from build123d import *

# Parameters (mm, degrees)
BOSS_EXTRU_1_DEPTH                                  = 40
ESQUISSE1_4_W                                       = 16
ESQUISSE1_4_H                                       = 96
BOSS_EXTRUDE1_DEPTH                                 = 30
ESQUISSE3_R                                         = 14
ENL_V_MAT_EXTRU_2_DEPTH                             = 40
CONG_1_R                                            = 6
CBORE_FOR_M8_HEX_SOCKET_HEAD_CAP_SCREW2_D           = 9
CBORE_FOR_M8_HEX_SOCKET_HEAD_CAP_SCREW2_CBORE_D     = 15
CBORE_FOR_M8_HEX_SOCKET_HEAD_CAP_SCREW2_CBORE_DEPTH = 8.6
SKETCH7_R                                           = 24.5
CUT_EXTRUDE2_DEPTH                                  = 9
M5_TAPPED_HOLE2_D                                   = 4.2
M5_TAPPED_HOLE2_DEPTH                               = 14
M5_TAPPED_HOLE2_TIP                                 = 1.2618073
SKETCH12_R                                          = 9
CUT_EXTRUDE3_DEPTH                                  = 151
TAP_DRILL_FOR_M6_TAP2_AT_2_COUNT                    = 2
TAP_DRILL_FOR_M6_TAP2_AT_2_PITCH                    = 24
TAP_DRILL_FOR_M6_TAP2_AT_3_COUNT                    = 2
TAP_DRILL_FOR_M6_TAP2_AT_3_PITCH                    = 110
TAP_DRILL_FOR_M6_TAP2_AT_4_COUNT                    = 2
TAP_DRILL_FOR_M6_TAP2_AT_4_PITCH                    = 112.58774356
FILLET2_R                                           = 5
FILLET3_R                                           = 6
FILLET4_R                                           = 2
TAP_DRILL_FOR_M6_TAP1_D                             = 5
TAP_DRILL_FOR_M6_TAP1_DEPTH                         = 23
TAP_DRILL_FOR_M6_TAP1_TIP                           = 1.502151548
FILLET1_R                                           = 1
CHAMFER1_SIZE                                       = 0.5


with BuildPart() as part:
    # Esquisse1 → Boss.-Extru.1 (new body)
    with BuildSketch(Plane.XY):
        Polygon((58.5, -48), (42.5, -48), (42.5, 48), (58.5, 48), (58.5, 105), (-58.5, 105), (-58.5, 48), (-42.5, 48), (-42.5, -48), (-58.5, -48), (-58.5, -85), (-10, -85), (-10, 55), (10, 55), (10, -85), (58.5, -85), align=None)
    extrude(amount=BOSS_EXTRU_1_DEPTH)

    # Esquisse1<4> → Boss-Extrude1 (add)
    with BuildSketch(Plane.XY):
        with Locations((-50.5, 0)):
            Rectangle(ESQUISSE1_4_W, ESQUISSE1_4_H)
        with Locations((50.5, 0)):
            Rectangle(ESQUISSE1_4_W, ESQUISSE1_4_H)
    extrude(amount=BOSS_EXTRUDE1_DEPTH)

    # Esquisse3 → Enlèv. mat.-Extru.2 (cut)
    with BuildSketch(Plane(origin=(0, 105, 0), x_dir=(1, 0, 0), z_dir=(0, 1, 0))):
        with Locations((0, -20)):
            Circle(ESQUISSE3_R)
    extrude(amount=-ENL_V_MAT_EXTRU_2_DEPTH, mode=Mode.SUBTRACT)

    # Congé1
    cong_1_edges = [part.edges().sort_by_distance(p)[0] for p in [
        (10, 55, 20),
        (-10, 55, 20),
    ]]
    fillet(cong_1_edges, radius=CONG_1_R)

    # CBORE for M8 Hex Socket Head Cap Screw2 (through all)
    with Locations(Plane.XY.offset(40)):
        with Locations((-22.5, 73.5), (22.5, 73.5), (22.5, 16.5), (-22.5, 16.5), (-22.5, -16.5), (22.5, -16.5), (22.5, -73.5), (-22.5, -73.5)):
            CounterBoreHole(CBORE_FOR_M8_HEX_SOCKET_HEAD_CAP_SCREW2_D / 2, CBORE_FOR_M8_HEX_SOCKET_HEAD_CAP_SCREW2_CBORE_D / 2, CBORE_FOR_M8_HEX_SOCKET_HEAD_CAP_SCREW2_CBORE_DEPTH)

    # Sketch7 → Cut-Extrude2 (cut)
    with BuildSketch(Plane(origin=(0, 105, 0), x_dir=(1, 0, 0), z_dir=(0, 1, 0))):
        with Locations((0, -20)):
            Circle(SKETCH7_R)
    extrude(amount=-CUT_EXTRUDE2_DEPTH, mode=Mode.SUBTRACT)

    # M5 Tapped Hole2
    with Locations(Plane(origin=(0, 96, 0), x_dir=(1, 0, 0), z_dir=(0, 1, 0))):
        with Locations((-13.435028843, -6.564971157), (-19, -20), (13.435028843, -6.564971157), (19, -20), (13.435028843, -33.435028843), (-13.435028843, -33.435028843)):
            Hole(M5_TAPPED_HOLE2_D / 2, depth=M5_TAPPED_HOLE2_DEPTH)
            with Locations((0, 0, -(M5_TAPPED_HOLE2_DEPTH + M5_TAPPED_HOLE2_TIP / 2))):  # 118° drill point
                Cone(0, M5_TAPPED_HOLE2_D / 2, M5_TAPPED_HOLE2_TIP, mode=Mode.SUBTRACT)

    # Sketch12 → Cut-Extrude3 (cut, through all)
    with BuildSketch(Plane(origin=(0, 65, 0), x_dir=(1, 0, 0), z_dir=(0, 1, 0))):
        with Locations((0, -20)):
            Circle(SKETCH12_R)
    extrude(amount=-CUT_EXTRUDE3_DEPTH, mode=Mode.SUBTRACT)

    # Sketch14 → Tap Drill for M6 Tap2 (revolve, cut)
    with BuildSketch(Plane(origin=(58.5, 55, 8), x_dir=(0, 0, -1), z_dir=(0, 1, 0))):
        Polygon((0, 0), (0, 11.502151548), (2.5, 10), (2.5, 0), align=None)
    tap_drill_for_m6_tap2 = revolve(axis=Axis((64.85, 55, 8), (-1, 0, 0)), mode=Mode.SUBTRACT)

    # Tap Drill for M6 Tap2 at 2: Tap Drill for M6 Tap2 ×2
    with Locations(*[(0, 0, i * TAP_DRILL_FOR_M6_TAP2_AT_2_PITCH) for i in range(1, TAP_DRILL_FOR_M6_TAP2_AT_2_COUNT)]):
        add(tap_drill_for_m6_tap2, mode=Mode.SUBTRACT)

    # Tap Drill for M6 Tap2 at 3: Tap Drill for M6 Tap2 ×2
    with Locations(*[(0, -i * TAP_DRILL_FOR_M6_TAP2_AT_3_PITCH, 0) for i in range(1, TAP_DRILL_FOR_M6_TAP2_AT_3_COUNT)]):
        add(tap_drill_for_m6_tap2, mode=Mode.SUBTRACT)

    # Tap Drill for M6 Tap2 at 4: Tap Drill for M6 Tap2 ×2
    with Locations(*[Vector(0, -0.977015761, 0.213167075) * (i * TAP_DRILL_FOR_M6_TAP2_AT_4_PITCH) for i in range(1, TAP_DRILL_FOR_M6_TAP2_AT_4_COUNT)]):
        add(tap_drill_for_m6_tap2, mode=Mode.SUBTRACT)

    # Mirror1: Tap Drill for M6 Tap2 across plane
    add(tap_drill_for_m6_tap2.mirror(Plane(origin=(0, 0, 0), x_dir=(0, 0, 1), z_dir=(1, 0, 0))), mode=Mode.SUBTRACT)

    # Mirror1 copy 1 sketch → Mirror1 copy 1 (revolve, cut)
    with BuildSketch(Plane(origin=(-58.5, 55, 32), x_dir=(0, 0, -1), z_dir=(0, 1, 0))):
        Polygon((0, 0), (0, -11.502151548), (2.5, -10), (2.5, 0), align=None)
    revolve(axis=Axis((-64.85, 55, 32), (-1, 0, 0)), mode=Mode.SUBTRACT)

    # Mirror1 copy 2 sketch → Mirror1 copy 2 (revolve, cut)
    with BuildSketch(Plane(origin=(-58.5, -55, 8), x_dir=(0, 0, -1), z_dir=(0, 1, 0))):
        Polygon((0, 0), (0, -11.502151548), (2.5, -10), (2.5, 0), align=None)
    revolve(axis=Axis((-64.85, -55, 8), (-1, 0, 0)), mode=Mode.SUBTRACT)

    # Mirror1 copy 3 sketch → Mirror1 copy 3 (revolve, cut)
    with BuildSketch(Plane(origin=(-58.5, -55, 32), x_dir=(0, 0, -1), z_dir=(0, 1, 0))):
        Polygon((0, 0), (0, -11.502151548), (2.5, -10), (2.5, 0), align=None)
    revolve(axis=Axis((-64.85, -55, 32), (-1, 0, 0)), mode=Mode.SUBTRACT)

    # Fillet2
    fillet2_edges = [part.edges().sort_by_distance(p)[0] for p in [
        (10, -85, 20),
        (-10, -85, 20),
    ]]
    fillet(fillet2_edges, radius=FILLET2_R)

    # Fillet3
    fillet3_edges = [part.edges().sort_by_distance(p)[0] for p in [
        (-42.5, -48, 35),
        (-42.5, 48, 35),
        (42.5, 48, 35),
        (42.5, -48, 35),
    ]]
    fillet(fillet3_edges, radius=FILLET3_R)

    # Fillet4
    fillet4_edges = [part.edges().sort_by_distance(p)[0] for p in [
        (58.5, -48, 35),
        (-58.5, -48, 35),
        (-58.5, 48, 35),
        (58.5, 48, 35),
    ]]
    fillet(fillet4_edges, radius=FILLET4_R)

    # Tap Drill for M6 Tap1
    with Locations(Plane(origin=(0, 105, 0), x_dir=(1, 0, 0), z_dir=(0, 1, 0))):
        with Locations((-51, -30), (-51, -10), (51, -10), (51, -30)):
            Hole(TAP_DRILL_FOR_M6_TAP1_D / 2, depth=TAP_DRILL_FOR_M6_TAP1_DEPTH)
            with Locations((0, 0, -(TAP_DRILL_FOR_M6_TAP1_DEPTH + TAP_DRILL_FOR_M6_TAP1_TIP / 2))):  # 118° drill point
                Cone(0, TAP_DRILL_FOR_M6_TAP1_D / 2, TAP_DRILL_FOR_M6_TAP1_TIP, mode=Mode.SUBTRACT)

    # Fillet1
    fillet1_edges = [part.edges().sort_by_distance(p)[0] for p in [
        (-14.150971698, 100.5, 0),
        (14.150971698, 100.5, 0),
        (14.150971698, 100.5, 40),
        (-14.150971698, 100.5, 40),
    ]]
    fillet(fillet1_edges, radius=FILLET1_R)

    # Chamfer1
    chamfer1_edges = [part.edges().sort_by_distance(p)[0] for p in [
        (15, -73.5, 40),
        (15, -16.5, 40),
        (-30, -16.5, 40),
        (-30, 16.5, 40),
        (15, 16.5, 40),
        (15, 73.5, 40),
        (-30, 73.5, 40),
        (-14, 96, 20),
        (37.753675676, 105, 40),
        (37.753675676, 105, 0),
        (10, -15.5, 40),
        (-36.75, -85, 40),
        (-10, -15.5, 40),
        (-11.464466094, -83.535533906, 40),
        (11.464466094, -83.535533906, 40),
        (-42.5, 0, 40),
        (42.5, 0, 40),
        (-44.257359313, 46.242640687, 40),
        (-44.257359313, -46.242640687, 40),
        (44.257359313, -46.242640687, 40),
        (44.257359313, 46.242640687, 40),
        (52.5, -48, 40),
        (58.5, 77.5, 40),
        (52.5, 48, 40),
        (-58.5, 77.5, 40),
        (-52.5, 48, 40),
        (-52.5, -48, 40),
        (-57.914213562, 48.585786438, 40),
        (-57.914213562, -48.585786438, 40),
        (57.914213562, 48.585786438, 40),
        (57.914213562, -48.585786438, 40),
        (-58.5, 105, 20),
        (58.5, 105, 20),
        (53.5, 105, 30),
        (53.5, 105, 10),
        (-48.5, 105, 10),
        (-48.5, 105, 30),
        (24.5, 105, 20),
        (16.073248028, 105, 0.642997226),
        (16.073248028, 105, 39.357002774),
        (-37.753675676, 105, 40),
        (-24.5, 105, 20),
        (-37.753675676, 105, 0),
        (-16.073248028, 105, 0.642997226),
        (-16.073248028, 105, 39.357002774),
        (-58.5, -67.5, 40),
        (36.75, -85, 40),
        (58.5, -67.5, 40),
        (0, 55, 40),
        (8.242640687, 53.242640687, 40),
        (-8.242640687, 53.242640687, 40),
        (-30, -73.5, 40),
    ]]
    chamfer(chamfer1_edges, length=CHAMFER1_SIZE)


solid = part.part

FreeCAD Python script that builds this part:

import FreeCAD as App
import Part
import Sketcher

V = App.Vector
Q = App.Units.Quantity


def edges_at(feature, points):
    """Names of the edges that pass closest to the given points."""
    edges = feature.Shape.Edges
    near = lambda p: min(range(len(edges)), key=lambda i: edges[i].distToShape(Part.Vertex(*p))[0])
    return sorted({f"Edge{near(p) + 1}" for p in points})


def add_polygon(sketch, points):
    """Adds a closed chain of lines whose ends are joined by coincident constraints."""
    first, n = sketch.GeometryCount, len(points)
    for a, b in zip(points, points[1:] + points[:1]):
        sketch.addGeometry(Part.LineSegment(App.Vector(*a, 0), App.Vector(*b, 0)), False)
    for i in range(n):
        sketch.addConstraint(Sketcher.Constraint("Coincident", first + i, 2, first + (i + 1) % n, 1))

doc = App.newDocument("Part")
body = doc.addObject("PartDesign::Body", "Body")

# Sketch on XY plane
sketch1 = body.newObject("Sketcher::SketchObject", "Sketch")
sketch1.AttachmentSupport = (doc.getObject("XY_Plane"), [""])
sketch1.MapMode = "FlatFace"
add_polygon(sketch1, [(58.5, -48), (42.5, -48), (42.5, 48), (58.5, 48), (58.5, 105), (-58.5, 105), (-58.5, 48), (-42.5, 48), (-42.5, -48), (-58.5, -48), (-58.5, -85), (-10, -85), (-10, 55), (10, 55), (10, -85), (58.5, -85)])  # lines 0-15
sketch1.addConstraint(Sketcher.Constraint("Horizontal", 0))
sketch1.addConstraint(Sketcher.Constraint("Vertical", 1))
sketch1.addConstraint(Sketcher.Constraint("Horizontal", 2))
sketch1.addConstraint(Sketcher.Constraint("Vertical", 3))
sketch1.addConstraint(Sketcher.Constraint("Horizontal", 4))
sketch1.addConstraint(Sketcher.Constraint("Vertical", 5))
sketch1.addConstraint(Sketcher.Constraint("Horizontal", 6))
sketch1.addConstraint(Sketcher.Constraint("Vertical", 7))
sketch1.addConstraint(Sketcher.Constraint("Horizontal", 8))
sketch1.addConstraint(Sketcher.Constraint("Vertical", 9))
sketch1.addConstraint(Sketcher.Constraint("Horizontal", 10))
sketch1.addConstraint(Sketcher.Constraint("Vertical", 11))
sketch1.addConstraint(Sketcher.Constraint("Horizontal", 12))
sketch1.addConstraint(Sketcher.Constraint("Vertical", 13))
sketch1.addConstraint(Sketcher.Constraint("Horizontal", 14))
sketch1.addConstraint(Sketcher.Constraint("Vertical", 15))
sketch1.addConstraint(Sketcher.Constraint("Symmetric", 0, 2, 6, 2, -1, 1))
sketch1.addConstraint(Sketcher.Constraint("Symmetric", 2, 2, 8, 2, -1, 1))
sketch1.addConstraint(Sketcher.Constraint("Symmetric", 2, 2, 5, 2, -2))
sketch1.addConstraint(Sketcher.Constraint("Symmetric", 10, 2, 13, 2, -2))
sketch1.addConstraint(Sketcher.Constraint("Vertical", 3, 2, 14, 2))
sketch1.addConstraint(Sketcher.Constraint("DistanceX", 0, 2, 0, 1, 16.0))
sketch1.addConstraint(Sketcher.Constraint("DistanceX", 4, 2, 4, 1, 117.0))
sketch1.addConstraint(Sketcher.Constraint("DistanceX", 12, 1, 12, 2, 20.0))
sketch1.addConstraint(Sketcher.Constraint("DistanceY", 1, 1, 1, 2, 96.0))
sketch1.addConstraint(Sketcher.Constraint("DistanceY", 3, 1, 3, 2, 57.0))
sketch1.addConstraint(Sketcher.Constraint("DistanceY", 9, 2, 9, 1, 37.0))
sketch1.addConstraint(Sketcher.Constraint("DistanceY", 11, 1, 11, 2, 140.0))
pad1 = body.newObject("PartDesign::Pad", "Pad")
pad1.Profile = sketch1
pad1.Length = 40

# Sketch on XY plane
sketch2 = body.newObject("Sketcher::SketchObject", "Sketch001")
sketch2.AttachmentSupport = (doc.getObject("XY_Plane"), [""])
sketch2.MapMode = "FlatFace"
add_polygon(sketch2, [(-58.5, 48), (-58.5, -48), (-42.5, -48), (-42.5, 48)])  # lines 0-3
add_polygon(sketch2, [(42.5, 48), (42.5, -48), (58.5, -48), (58.5, 48)])  # lines 4-7
sketch2.addConstraint(Sketcher.Constraint("Vertical", 0))
sketch2.addConstraint(Sketcher.Constraint("Horizontal", 1))
sketch2.addConstraint(Sketcher.Constraint("Vertical", 2))
sketch2.addConstraint(Sketcher.Constraint("Horizontal", 3))
sketch2.addConstraint(Sketcher.Constraint("Vertical", 4))
sketch2.addConstraint(Sketcher.Constraint("Horizontal", 5))
sketch2.addConstraint(Sketcher.Constraint("Vertical", 6))
sketch2.addConstraint(Sketcher.Constraint("Horizontal", 7))
sketch2.addConstraint(Sketcher.Constraint("Symmetric", 2, 2, 4, 2, -1, 1))
sketch2.addConstraint(Sketcher.Constraint("Symmetric", 0, 2, 6, 2, -1, 1))
sketch2.addConstraint(Sketcher.Constraint("Horizontal", 1, 2, 4, 2))
sketch2.addConstraint(Sketcher.Constraint("DistanceX", 1, 1, 1, 2, 16.0))
sketch2.addConstraint(Sketcher.Constraint("DistanceY", 0, 2, 0, 1, 96.0))
sketch2.addConstraint(Sketcher.Constraint("DistanceX", 1, 2, 4, 2, 85.0))
pad2 = body.newObject("PartDesign::Pad", "Pad001")
pad2.Profile = sketch2
pad2.Length = 30

# Sketch on XZ plane
sketch3 = body.newObject("Sketcher::SketchObject", "Sketch002")
sketch3.AttachmentSupport = (doc.getObject("XZ_Plane"), [""])
sketch3.MapMode = "FlatFace"
sketch3.AttachmentOffset = App.Placement(V(0, 0, -105), App.Rotation())
sketch3.addGeometry(Part.Circle(V(0, 20, 0), V(0, 0, 1), 14), False)
sketch3.addConstraint(Sketcher.Constraint("PointOnObject", 0, 3, -2))
sketch3.addConstraint(Sketcher.Constraint("Diameter", 0, 28.0))
sketch3.addConstraint(Sketcher.Constraint("DistanceY", -1, 1, 0, 3, 20.0))
pocket1 = body.newObject("PartDesign::Pocket", "Pocket")
pocket1.Profile = sketch3
pocket1.Length = 40
pocket1.Reversed = True
doc.recompute()

fillet = body.newObject("PartDesign::Fillet", "Fillet")
fillet.Base = (pocket1, edges_at(pocket1, [(10, 55, 20), (-10, 55, 20)]))
fillet.Radius = 6

# Sketch on XY plane
sketch4 = body.newObject("Sketcher::SketchObject", "Sketch003")
sketch4.AttachmentSupport = (doc.getObject("XY_Plane"), [""])
sketch4.MapMode = "FlatFace"
sketch4.AttachmentOffset = App.Placement(V(0, 0, 40), App.Rotation())
sketch4.addGeometry(Part.Circle(V(-22.5, 73.5, 0), V(0, 0, 1), 4.5), False)
sketch4.addGeometry(Part.Circle(V(22.5, 73.5, 0), V(0, 0, 1), 4.5), False)
sketch4.addGeometry(Part.Circle(V(22.5, 16.5, 0), V(0, 0, 1), 4.5), False)
sketch4.addGeometry(Part.Circle(V(-22.5, 16.5, 0), V(0, 0, 1), 4.5), False)
sketch4.addGeometry(Part.Circle(V(-22.5, -16.5, 0), V(0, 0, 1), 4.5), False)
sketch4.addGeometry(Part.Circle(V(22.5, -16.5, 0), V(0, 0, 1), 4.5), False)
sketch4.addGeometry(Part.Circle(V(22.5, -73.5, 0), V(0, 0, 1), 4.5), False)
sketch4.addGeometry(Part.Circle(V(-22.5, -73.5, 0), V(0, 0, 1), 4.5), False)
sketch4.addConstraint(Sketcher.Constraint("Equal", 0, 1))
sketch4.addConstraint(Sketcher.Constraint("Equal", 1, 2))
sketch4.addConstraint(Sketcher.Constraint("Equal", 2, 3))
sketch4.addConstraint(Sketcher.Constraint("Equal", 3, 4))
sketch4.addConstraint(Sketcher.Constraint("Equal", 4, 5))
sketch4.addConstraint(Sketcher.Constraint("Equal", 5, 6))
sketch4.addConstraint(Sketcher.Constraint("Equal", 6, 7))
sketch4.addConstraint(Sketcher.Constraint("Symmetric", 2, 3, 4, 3, -1, 1))
sketch4.addConstraint(Sketcher.Constraint("Symmetric", 3, 3, 5, 3, -1, 1))
sketch4.addConstraint(Sketcher.Constraint("Symmetric", 0, 3, 6, 3, -1, 1))
sketch4.addConstraint(Sketcher.Constraint("Symmetric", 1, 3, 7, 3, -1, 1))
sketch4.addConstraint(Sketcher.Constraint("Symmetric", 0, 3, 1, 3, -2))
sketch4.addConstraint(Sketcher.Constraint("Symmetric", 2, 3, 3, 3, -2))
sketch4.addConstraint(Sketcher.Constraint("Vertical", 1, 3, 2, 3))
sketch4.addConstraint(Sketcher.Constraint("Diameter", 0, 9.0))
sketch4.addConstraint(Sketcher.Constraint("DistanceX", 0, 3, 1, 3, 45.0))
sketch4.addConstraint(Sketcher.Constraint("DistanceY", 2, 3, 1, 3, 57.0))
sketch4.addConstraint(Sketcher.Constraint("DistanceY", 4, 3, 3, 3, 33.0))
doc.recompute()
hole = body.newObject("PartDesign::Hole", "Hole")
hole.Profile = sketch4
hole.ThreadType = "None"
hole.Diameter = 9
hole.DepthType = "ThroughAll"
hole.HoleCutType = "Counterbore"
hole.HoleCutDiameter = 15
hole.HoleCutDepth = 8.6

# Sketch on XZ plane
sketch5 = body.newObject("Sketcher::SketchObject", "Sketch004")
sketch5.AttachmentSupport = (doc.getObject("XZ_Plane"), [""])
sketch5.MapMode = "FlatFace"
sketch5.AttachmentOffset = App.Placement(V(0, 0, -105), App.Rotation())
sketch5.addGeometry(Part.Circle(V(0, 20, 0), V(0, 0, 1), 24.5), False)
sketch5.addConstraint(Sketcher.Constraint("PointOnObject", 0, 3, -2))
sketch5.addConstraint(Sketcher.Constraint("Diameter", 0, 49.0))
sketch5.addConstraint(Sketcher.Constraint("DistanceY", -1, 1, 0, 3, 20.0))
pocket2 = body.newObject("PartDesign::Pocket", "Pocket001")
pocket2.Profile = sketch5
pocket2.Length = 9
pocket2.Reversed = True

# Sketch on XZ plane
sketch6 = body.newObject("Sketcher::SketchObject", "Sketch005")
sketch6.AttachmentSupport = (doc.getObject("XZ_Plane"), [""])
sketch6.MapMode = "FlatFace"
sketch6.AttachmentOffset = App.Placement(V(0, 0, -96), App.Rotation())
sketch6.addGeometry(Part.Circle(V(-13.435029, 6.564971, 0), V(0, 0, 1), 2.1), False)
sketch6.addGeometry(Part.Circle(V(-19, 20, 0), V(0, 0, 1), 2.1), False)
sketch6.addGeometry(Part.Circle(V(13.435029, 6.564971, 0), V(0, 0, 1), 2.1), False)
sketch6.addGeometry(Part.Circle(V(19, 20, 0), V(0, 0, 1), 2.1), False)
sketch6.addGeometry(Part.Circle(V(13.435029, 33.435029, 0), V(0, 0, 1), 2.1), False)
sketch6.addGeometry(Part.Circle(V(-13.435029, 33.435029, 0), V(0, 0, 1), 2.1), False)
sketch6.addConstraint(Sketcher.Constraint("Equal", 0, 1))
sketch6.addConstraint(Sketcher.Constraint("Equal", 1, 2))
sketch6.addConstraint(Sketcher.Constraint("Equal", 2, 3))
sketch6.addConstraint(Sketcher.Constraint("Equal", 3, 4))
sketch6.addConstraint(Sketcher.Constraint("Equal", 4, 5))
sketch6.addConstraint(Sketcher.Constraint("Symmetric", 0, 3, 2, 3, -2))
sketch6.addConstraint(Sketcher.Constraint("Symmetric", 1, 3, 3, 3, -2))
sketch6.addConstraint(Sketcher.Constraint("Symmetric", 4, 3, 5, 3, -2))
sketch6.addConstraint(Sketcher.Constraint("Vertical", 2, 3, 4, 3))
sketch6.addConstraint(Sketcher.Constraint("Diameter", 0, 4.2))
sketch6.addConstraint(Sketcher.Constraint("DistanceX", 1, 3, -1, 1, 19.0))
sketch6.addConstraint(Sketcher.Constraint("DistanceY", -1, 1, 1, 3, 20.0))
sketch6.addConstraint(Sketcher.Constraint("DistanceX", 0, 3, -1, 1, 13.435029))
sketch6.addConstraint(Sketcher.Constraint("DistanceY", -1, 1, 0, 3, 6.564971))
sketch6.addConstraint(Sketcher.Constraint("DistanceY", -1, 1, 4, 3, 33.435029))
doc.recompute()
hole2 = body.newObject("PartDesign::Hole", "Hole001")
hole2.Profile = sketch6
hole2.ThreadType = "None"
hole2.Diameter = 4.2
hole2.DepthType = "Dimension"
hole2.Depth = 14
hole2.DrillPoint = "Angled"
hole2.DrillPointAngle = 118
hole2.Reversed = True

# Sketch on XZ plane
sketch7 = body.newObject("Sketcher::SketchObject", "Sketch006")
sketch7.AttachmentSupport = (doc.getObject("XZ_Plane"), [""])
sketch7.MapMode = "FlatFace"
sketch7.AttachmentOffset = App.Placement(V(0, 0, -65), App.Rotation())
sketch7.addGeometry(Part.Circle(V(0, 20, 0), V(0, 0, 1), 9), False)
sketch7.addConstraint(Sketcher.Constraint("PointOnObject", 0, 3, -2))
sketch7.addConstraint(Sketcher.Constraint("Diameter", 0, 18.0))
sketch7.addConstraint(Sketcher.Constraint("DistanceY", -1, 1, 0, 3, 20.0))
pocket3 = body.newObject("PartDesign::Pocket", "Pocket002")
pocket3.Profile = sketch7
pocket3.Type = "ThroughAll"
pocket3.Reversed = True

# Sketch on XZ plane
sketch8 = body.newObject("Sketcher::SketchObject", "Sketch007")
sketch8.AttachmentSupport = (doc.getObject("XZ_Plane"), [""])
sketch8.MapMode = "FlatFace"
sketch8.AttachmentOffset = App.Placement(V(0, 0, -55), App.Rotation())
add_polygon(sketch8, [(46.997848, 8), (58.5, 8), (58.5, 5.5), (48.5, 5.5)])  # lines 0-3
sketch8.addGeometry(Part.LineSegment(V(58.5, 8, 0), V(46.997848, 8, 0)), True)  # axis
sketch8.addConstraint(Sketcher.Constraint("Horizontal", 0))
sketch8.addConstraint(Sketcher.Constraint("Vertical", 1))
sketch8.addConstraint(Sketcher.Constraint("Horizontal", 2))
sketch8.addConstraint(Sketcher.Constraint("Horizontal", 4))
sketch8.addConstraint(Sketcher.Constraint("Coincident", 4, 1, 0, 2))
sketch8.addConstraint(Sketcher.Constraint("Equal", 0, 4))
sketch8.addConstraint(Sketcher.Constraint("DistanceX", 2, 2, 2, 1, 10.0))
sketch8.addConstraint(Sketcher.Constraint("Angle", 3, Q("121 deg")))
sketch8.addConstraint(Sketcher.Constraint("DistanceY", 1, 2, 1, 1, 2.5))
sketch8.addConstraint(Sketcher.Constraint("DistanceY", -1, 1, 0, 2, 8.0))
sketch8.addConstraint(Sketcher.Constraint("DistanceX", -1, 1, 0, 2, 58.5))
groove = body.newObject("PartDesign::Groove", "Groove")
groove.Profile = sketch8
groove.ReferenceAxis = (sketch8, ["Axis0"])
groove.Angle = 360
doc.recompute()

linearpattern = body.newObject("PartDesign::LinearPattern", "LinearPattern")
linearpattern.Originals = [groove]
linearpattern.Direction = (doc.getObject("Z_Axis"), [""])
linearpattern.Mode = "offset"
linearpattern.Offset = 24
linearpattern.Occurrences = 2
body.Tip = linearpattern
doc.recompute()

linearpattern2 = body.newObject("PartDesign::LinearPattern", "LinearPattern001")
linearpattern2.Originals = [groove]
linearpattern2.Direction = (doc.getObject("Y_Axis"), [""])
linearpattern2.Mode = "offset"
linearpattern2.Offset = 110
linearpattern2.Occurrences = 2
linearpattern2.Reversed = True
body.Tip = linearpattern2
doc.recompute()

datumline = body.newObject("PartDesign::Line", "DatumLine")
datumline.Placement = App.Placement(V(0, 0, 0), App.Rotation(V(0, 0, 1), V(0, -0.977015761, 0.213167075)))
linearpattern3 = body.newObject("PartDesign::LinearPattern", "LinearPattern002")
linearpattern3.Originals = [groove]
linearpattern3.Direction = (datumline, [""])
linearpattern3.Mode = "offset"
linearpattern3.Offset = 112.587744
linearpattern3.Occurrences = 2
body.Tip = linearpattern3
doc.recompute()

mirrored = body.newObject("PartDesign::Mirrored", "Mirrored")
mirrored.Originals = [groove]
mirrored.MirrorPlane = (doc.getObject("YZ_Plane"), [""])
body.Tip = mirrored

# Sketch on XZ plane
sketch9 = body.newObject("Sketcher::SketchObject", "Sketch008")
sketch9.AttachmentSupport = (doc.getObject("XZ_Plane"), [""])
sketch9.MapMode = "FlatFace"
sketch9.AttachmentOffset = App.Placement(V(0, 0, -55), App.Rotation())
add_polygon(sketch9, [(-58.5, 32), (-46.997848, 32), (-48.5, 29.5), (-58.5, 29.5)])  # lines 0-3
sketch9.addGeometry(Part.LineSegment(V(-46.997848, 32, 0), V(-58.5, 32, 0)), True)  # axis
sketch9.addConstraint(Sketcher.Constraint("Horizontal", 0))
sketch9.addConstraint(Sketcher.Constraint("Horizontal", 2))
sketch9.addConstraint(Sketcher.Constraint("Vertical", 3))
sketch9.addConstraint(Sketcher.Constraint("Horizontal", 4))
sketch9.addConstraint(Sketcher.Constraint("Coincident", 4, 1, 0, 2))
sketch9.addConstraint(Sketcher.Constraint("Vertical", 2, 2, 4, 2))
sketch9.addConstraint(Sketcher.Constraint("DistanceX", 2, 2, 2, 1, 10.0))
sketch9.addConstraint(Sketcher.Constraint("Angle", 1, Q("-121 deg")))
sketch9.addConstraint(Sketcher.Constraint("DistanceY", 3, 1, 3, 2, 2.5))
sketch9.addConstraint(Sketcher.Constraint("DistanceY", -1, 1, 0, 2, 32.0))
sketch9.addConstraint(Sketcher.Constraint("DistanceX", 1, 2, -1, 1, 48.5))
groove2 = body.newObject("PartDesign::Groove", "Groove001")
groove2.Profile = sketch9
groove2.ReferenceAxis = (sketch9, ["Axis0"])
groove2.Angle = 360

# Sketch on XZ plane
sketch10 = body.newObject("Sketcher::SketchObject", "Sketch009")
sketch10.AttachmentSupport = (doc.getObject("XZ_Plane"), [""])
sketch10.MapMode = "FlatFace"
sketch10.AttachmentOffset = App.Placement(V(0, 0, 55), App.Rotation())
add_polygon(sketch10, [(-58.5, 8), (-46.997848, 8), (-48.5, 5.5), (-58.5, 5.5)])  # lines 0-3
sketch10.addGeometry(Part.LineSegment(V(-46.997848, 8, 0), V(-58.5, 8, 0)), True)  # axis
sketch10.addConstraint(Sketcher.Constraint("Horizontal", 0))
sketch10.addConstraint(Sketcher.Constraint("Horizontal", 2))
sketch10.addConstraint(Sketcher.Constraint("Vertical", 3))
sketch10.addConstraint(Sketcher.Constraint("Horizontal", 4))
sketch10.addConstraint(Sketcher.Constraint("Coincident", 4, 1, 0, 2))
sketch10.addConstraint(Sketcher.Constraint("Vertical", 2, 2, 4, 2))
sketch10.addConstraint(Sketcher.Constraint("DistanceX", 2, 2, 2, 1, 10.0))
sketch10.addConstraint(Sketcher.Constraint("Angle", 1, Q("-121 deg")))
sketch10.addConstraint(Sketcher.Constraint("DistanceY", 3, 1, 3, 2, 2.5))
sketch10.addConstraint(Sketcher.Constraint("DistanceY", -1, 1, 0, 2, 8.0))
sketch10.addConstraint(Sketcher.Constraint("DistanceX", 1, 2, -1, 1, 48.5))
groove3 = body.newObject("PartDesign::Groove", "Groove002")
groove3.Profile = sketch10
groove3.ReferenceAxis = (sketch10, ["Axis0"])
groove3.Angle = 360

# Sketch on XZ plane
sketch11 = body.newObject("Sketcher::SketchObject", "Sketch010")
sketch11.AttachmentSupport = (doc.getObject("XZ_Plane"), [""])
sketch11.MapMode = "FlatFace"
sketch11.AttachmentOffset = App.Placement(V(0, 0, 55), App.Rotation())
add_polygon(sketch11, [(-58.5, 32), (-46.997848, 32), (-48.5, 29.5), (-58.5, 29.5)])  # lines 0-3
sketch11.addGeometry(Part.LineSegment(V(-46.997848, 32, 0), V(-58.5, 32, 0)), True)  # axis
sketch11.addConstraint(Sketcher.Constraint("Horizontal", 0))
sketch11.addConstraint(Sketcher.Constraint("Horizontal", 2))
sketch11.addConstraint(Sketcher.Constraint("Vertical", 3))
sketch11.addConstraint(Sketcher.Constraint("Horizontal", 4))
sketch11.addConstraint(Sketcher.Constraint("Coincident", 4, 1, 0, 2))
sketch11.addConstraint(Sketcher.Constraint("Vertical", 2, 2, 4, 2))
sketch11.addConstraint(Sketcher.Constraint("DistanceX", 2, 2, 2, 1, 10.0))
sketch11.addConstraint(Sketcher.Constraint("Angle", 1, Q("-121 deg")))
sketch11.addConstraint(Sketcher.Constraint("DistanceY", 3, 1, 3, 2, 2.5))
sketch11.addConstraint(Sketcher.Constraint("DistanceY", -1, 1, 0, 2, 32.0))
sketch11.addConstraint(Sketcher.Constraint("DistanceX", 1, 2, -1, 1, 48.5))
groove4 = body.newObject("PartDesign::Groove", "Groove003")
groove4.Profile = sketch11
groove4.ReferenceAxis = (sketch11, ["Axis0"])
groove4.Angle = 360
doc.recompute()

fillet2 = body.newObject("PartDesign::Fillet", "Fillet001")
fillet2.Base = (groove4, edges_at(groove4, [(10, -85, 20), (-10, -85, 20)]))
fillet2.Radius = 5
doc.recompute()

fillet3 = body.newObject("PartDesign::Fillet", "Fillet002")
fillet3.Base = (fillet2, edges_at(fillet2, [
    (-42.5, -48, 35),
    (-42.5, 48, 35),
    (42.5, 48, 35),
    (42.5, -48, 35),
]))
fillet3.Radius = 6
doc.recompute()

fillet4 = body.newObject("PartDesign::Fillet", "Fillet003")
fillet4.Base = (fillet3, edges_at(fillet3, [
    (58.5, -48, 35),
    (-58.5, -48, 35),
    (-58.5, 48, 35),
    (58.5, 48, 35),
]))
fillet4.Radius = 2

# Sketch on XZ plane
sketch12 = body.newObject("Sketcher::SketchObject", "Sketch011")
sketch12.AttachmentSupport = (doc.getObject("XZ_Plane"), [""])
sketch12.MapMode = "FlatFace"
sketch12.AttachmentOffset = App.Placement(V(0, 0, -105), App.Rotation())
sketch12.addGeometry(Part.Circle(V(-51, 30, 0), V(0, 0, 1), 2.5), False)
sketch12.addGeometry(Part.Circle(V(-51, 10, 0), V(0, 0, 1), 2.5), False)
sketch12.addGeometry(Part.Circle(V(51, 10, 0), V(0, 0, 1), 2.5), False)
sketch12.addGeometry(Part.Circle(V(51, 30, 0), V(0, 0, 1), 2.5), False)
sketch12.addConstraint(Sketcher.Constraint("Equal", 0, 1))
sketch12.addConstraint(Sketcher.Constraint("Equal", 1, 2))
sketch12.addConstraint(Sketcher.Constraint("Equal", 2, 3))
sketch12.addConstraint(Sketcher.Constraint("Symmetric", 1, 3, 2, 3, -2))
sketch12.addConstraint(Sketcher.Constraint("Symmetric", 0, 3, 3, 3, -2))
sketch12.addConstraint(Sketcher.Constraint("Vertical", 0, 3, 1, 3))
sketch12.addConstraint(Sketcher.Constraint("Diameter", 0, 5.0))
sketch12.addConstraint(Sketcher.Constraint("DistanceX", 0, 3, -1, 1, 51.0))
sketch12.addConstraint(Sketcher.Constraint("DistanceY", -1, 1, 0, 3, 30.0))
sketch12.addConstraint(Sketcher.Constraint("DistanceY", -1, 1, 1, 3, 10.0))
doc.recompute()
hole3 = body.newObject("PartDesign::Hole", "Hole002")
hole3.Profile = sketch12
hole3.ThreadType = "None"
hole3.Diameter = 5
hole3.DepthType = "Dimension"
hole3.Depth = 23
hole3.DrillPoint = "Angled"
hole3.DrillPointAngle = 118
hole3.Reversed = True
doc.recompute()

fillet5 = body.newObject("PartDesign::Fillet", "Fillet004")
fillet5.Base = (hole3, edges_at(hole3, [
    (-14.151, 100.5, 0),
    (14.151, 100.5, 0),
    (14.151, 100.5, 40),
    (-14.151, 100.5, 40),
]))
fillet5.Radius = 1
doc.recompute()

chamfer = body.newObject("PartDesign::Chamfer", "Chamfer")
chamfer.Base = (fillet5, edges_at(fillet5, [
    (15, -73.5, 40),
    (15, -16.5, 40),
    (-30, -16.5, 40),
    (-30, 16.5, 40),
    (15, 16.5, 40),
    (15, 73.5, 40),
    (-30, 73.5, 40),
    (-14, 96, 20),
    (37.754, 105, 40),
    (37.754, 105, 0),
    (10, -15.5, 40),
    (-36.75, -85, 40),
    (-10, -15.5, 40),
    (-11.464, -83.536, 40),
    (11.464, -83.536, 40),
    (-42.5, 0, 40),
    (42.5, 0, 40),
    (-44.257, 46.243, 40),
    (-44.257, -46.243, 40),
    (44.257, -46.243, 40),
    (44.257, 46.243, 40),
    (52.5, -48, 40),
    (58.5, 77.5, 40),
    (52.5, 48, 40),
    (-58.5, 77.5, 40),
    (-52.5, 48, 40),
    (-52.5, -48, 40),
    (-57.914, 48.586, 40),
    (-57.914, -48.586, 40),
    (57.914, 48.586, 40),
    (57.914, -48.586, 40),
    (-58.5, 105, 20),
    (58.5, 105, 20),
    (53.5, 105, 30),
    (53.5, 105, 10),
    (-48.5, 105, 10),
    (-48.5, 105, 30),
    (24.5, 105, 20),
    (16.073, 105, 0.643),
    (16.073, 105, 39.357),
    (-37.754, 105, 40),
    (-24.5, 105, 20),
    (-37.754, 105, 0),
    (-16.073, 105, 0.643),
    (-16.073, 105, 39.357),
    (-58.5, -67.5, 40),
    (36.75, -85, 40),
    (58.5, -67.5, 40),
    (0, 55, 40),
    (8.243, 53.243, 40),
    (-8.243, 53.243, 40),
    (-30, -73.5, 40),
]))
chamfer.Size = 0.5

doc.recompute()
